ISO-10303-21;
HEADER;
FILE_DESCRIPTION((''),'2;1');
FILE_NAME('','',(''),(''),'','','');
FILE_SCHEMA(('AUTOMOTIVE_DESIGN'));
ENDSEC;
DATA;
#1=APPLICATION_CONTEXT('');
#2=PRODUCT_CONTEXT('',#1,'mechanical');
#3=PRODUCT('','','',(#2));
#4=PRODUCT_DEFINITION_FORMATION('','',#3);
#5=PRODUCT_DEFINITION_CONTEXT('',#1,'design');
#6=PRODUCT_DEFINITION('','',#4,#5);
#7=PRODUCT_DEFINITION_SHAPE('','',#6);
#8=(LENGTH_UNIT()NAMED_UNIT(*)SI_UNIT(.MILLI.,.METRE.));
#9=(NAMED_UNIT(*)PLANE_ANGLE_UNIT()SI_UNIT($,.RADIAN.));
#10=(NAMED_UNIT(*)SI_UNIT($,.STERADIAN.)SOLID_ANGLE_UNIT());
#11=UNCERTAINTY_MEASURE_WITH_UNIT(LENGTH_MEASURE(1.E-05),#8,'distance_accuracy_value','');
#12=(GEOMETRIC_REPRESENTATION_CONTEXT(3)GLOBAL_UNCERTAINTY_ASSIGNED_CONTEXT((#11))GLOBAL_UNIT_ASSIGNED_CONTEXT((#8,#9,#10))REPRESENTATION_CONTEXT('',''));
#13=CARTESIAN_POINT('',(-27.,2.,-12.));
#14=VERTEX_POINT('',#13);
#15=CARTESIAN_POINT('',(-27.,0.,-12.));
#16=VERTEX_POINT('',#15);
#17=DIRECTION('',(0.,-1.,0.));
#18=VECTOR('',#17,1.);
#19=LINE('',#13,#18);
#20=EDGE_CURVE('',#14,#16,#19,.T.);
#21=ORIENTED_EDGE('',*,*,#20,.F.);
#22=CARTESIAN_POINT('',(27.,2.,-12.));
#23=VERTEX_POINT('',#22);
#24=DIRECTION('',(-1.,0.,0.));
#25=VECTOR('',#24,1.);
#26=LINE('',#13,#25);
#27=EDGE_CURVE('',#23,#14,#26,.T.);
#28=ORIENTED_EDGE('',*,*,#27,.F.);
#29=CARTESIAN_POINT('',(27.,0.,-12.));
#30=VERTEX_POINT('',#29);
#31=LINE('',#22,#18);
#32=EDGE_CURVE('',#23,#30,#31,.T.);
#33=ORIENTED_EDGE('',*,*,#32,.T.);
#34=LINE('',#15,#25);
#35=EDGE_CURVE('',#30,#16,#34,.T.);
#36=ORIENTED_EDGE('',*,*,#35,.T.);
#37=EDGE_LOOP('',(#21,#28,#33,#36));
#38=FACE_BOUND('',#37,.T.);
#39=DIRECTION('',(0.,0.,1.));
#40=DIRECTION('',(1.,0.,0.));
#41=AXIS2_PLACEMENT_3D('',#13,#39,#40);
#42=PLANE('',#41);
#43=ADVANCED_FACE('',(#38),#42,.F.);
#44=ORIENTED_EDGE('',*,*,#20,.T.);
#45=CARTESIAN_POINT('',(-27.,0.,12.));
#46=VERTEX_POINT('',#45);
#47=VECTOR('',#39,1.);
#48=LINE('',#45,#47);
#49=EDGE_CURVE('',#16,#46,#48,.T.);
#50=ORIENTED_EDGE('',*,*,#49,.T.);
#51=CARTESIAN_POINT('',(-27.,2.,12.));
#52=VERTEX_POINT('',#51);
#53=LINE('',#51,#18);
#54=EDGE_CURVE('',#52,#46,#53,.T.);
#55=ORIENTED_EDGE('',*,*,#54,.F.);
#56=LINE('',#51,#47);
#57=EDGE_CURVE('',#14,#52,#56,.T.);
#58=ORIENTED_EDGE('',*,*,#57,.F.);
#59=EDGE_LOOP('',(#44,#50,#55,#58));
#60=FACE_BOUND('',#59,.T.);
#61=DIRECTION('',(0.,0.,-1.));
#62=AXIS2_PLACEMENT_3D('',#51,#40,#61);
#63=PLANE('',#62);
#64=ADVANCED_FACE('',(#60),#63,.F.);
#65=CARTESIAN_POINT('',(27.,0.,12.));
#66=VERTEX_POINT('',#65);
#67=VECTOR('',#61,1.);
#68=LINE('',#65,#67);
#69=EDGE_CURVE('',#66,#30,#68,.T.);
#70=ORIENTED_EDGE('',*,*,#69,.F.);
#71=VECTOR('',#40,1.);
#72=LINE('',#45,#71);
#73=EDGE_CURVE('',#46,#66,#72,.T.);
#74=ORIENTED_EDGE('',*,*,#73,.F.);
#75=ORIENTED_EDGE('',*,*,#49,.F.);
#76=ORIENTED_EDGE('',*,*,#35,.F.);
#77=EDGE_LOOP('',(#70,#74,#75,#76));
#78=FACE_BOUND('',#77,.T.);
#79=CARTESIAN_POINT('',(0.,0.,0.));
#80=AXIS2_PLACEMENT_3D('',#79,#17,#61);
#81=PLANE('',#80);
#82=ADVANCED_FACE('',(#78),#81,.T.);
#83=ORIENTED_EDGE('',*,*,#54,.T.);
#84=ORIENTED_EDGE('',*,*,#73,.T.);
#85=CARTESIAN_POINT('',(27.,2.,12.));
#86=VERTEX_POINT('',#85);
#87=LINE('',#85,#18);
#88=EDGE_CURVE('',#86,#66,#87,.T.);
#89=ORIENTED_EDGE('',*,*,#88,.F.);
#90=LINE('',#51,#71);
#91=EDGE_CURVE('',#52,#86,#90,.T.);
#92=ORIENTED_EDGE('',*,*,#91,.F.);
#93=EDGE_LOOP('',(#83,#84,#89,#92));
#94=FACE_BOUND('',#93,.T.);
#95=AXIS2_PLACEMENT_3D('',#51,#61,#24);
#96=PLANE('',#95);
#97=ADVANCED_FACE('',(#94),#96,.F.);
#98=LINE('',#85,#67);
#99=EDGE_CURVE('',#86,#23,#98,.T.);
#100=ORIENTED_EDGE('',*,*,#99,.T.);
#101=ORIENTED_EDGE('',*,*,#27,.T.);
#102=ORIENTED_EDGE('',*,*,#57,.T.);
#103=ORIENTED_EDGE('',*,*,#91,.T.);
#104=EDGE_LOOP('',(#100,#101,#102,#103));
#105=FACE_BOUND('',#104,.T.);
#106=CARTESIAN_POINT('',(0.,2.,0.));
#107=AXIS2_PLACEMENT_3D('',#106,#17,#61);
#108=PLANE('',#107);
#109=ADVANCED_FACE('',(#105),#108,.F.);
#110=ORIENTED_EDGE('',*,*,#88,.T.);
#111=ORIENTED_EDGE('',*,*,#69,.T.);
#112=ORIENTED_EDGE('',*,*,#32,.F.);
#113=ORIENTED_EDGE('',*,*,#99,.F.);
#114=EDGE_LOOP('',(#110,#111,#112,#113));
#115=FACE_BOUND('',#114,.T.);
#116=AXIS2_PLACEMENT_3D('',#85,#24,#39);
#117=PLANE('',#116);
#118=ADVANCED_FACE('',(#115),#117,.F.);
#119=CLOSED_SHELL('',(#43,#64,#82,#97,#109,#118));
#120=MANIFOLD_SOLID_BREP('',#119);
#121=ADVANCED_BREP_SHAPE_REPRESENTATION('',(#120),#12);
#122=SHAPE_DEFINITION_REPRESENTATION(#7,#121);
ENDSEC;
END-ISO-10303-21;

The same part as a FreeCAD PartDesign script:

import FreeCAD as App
import Part
import Sketcher

V = App.Vector

doc = App.newDocument("Part")
params = doc.addObject("Spreadsheet::Sheet", "Params")
for row, (alias, value) in enumerate([
    ("sketch1_width", "54 mm"),
    ("sketch1_height", "24 mm"),
    ("pad1_length", "2 mm"),
], start=1):
    params.set(f"A{row}", alias)
    params.set(f"B{row}", "=" + value)
    params.setAlias(f"B{row}", alias)

body = doc.addObject("PartDesign::Body", "Body")

# Sketch on XZ plane
sketch1 = body.newObject("Sketcher::SketchObject", "Sketch")
sketch1.AttachmentSupport = (doc.getObject("XZ_Plane"), [""])
sketch1.MapMode = "FlatFace"
sketch1.addGeometry(Part.LineSegment(V(-27, -12, 0), V(-27, 12, 0)), False)
sketch1.addGeometry(Part.LineSegment(V(-27, 12, 0), V(27, 12, 0)), False)
sketch1.addGeometry(Part.LineSegment(V(27, 12, 0), V(27, -12, 0)), False)
sketch1.addGeometry(Part.LineSegment(V(27, -12, 0), V(-27, -12, 0)), False)
sketch1.addConstraint(Sketcher.Constraint("Coincident", 0, 2, 1, 1))
sketch1.addConstraint(Sketcher.Constraint("Coincident", 1, 2, 2, 1))
sketch1.addConstraint(Sketcher.Constraint("Coincident", 2, 2, 3, 1))
sketch1.addConstraint(Sketcher.Constraint("Coincident", 3, 2, 0, 1))
sketch1.addConstraint(Sketcher.Constraint("Vertical", 0))
sketch1.addConstraint(Sketcher.Constraint("Horizontal", 1))
sketch1.addConstraint(Sketcher.Constraint("Vertical", 2))
sketch1.addConstraint(Sketcher.Constraint("Horizontal", 3))
sketch1.addConstraint(Sketcher.Constraint("Symmetric", 0, 2, 2, 2, -1, 1))
sketch1.addConstraint(Sketcher.Constraint("DistanceX", 1, 1, 1, 2, 54.0))
sketch1.addConstraint(Sketcher.Constraint("DistanceY", 0, 1, 0, 2, 24.0))
sketch1.setExpression("Constraints[9]", "Params.sketch1_width")
sketch1.setExpression("Constraints[10]", "Params.sketch1_height")
pad1 = body.newObject("PartDesign::Pad", "Pad")
pad1.Profile = sketch1
pad1.setExpression("Length", "Params.pad1_length")
pad1.Reversed = True

doc.recompute()
